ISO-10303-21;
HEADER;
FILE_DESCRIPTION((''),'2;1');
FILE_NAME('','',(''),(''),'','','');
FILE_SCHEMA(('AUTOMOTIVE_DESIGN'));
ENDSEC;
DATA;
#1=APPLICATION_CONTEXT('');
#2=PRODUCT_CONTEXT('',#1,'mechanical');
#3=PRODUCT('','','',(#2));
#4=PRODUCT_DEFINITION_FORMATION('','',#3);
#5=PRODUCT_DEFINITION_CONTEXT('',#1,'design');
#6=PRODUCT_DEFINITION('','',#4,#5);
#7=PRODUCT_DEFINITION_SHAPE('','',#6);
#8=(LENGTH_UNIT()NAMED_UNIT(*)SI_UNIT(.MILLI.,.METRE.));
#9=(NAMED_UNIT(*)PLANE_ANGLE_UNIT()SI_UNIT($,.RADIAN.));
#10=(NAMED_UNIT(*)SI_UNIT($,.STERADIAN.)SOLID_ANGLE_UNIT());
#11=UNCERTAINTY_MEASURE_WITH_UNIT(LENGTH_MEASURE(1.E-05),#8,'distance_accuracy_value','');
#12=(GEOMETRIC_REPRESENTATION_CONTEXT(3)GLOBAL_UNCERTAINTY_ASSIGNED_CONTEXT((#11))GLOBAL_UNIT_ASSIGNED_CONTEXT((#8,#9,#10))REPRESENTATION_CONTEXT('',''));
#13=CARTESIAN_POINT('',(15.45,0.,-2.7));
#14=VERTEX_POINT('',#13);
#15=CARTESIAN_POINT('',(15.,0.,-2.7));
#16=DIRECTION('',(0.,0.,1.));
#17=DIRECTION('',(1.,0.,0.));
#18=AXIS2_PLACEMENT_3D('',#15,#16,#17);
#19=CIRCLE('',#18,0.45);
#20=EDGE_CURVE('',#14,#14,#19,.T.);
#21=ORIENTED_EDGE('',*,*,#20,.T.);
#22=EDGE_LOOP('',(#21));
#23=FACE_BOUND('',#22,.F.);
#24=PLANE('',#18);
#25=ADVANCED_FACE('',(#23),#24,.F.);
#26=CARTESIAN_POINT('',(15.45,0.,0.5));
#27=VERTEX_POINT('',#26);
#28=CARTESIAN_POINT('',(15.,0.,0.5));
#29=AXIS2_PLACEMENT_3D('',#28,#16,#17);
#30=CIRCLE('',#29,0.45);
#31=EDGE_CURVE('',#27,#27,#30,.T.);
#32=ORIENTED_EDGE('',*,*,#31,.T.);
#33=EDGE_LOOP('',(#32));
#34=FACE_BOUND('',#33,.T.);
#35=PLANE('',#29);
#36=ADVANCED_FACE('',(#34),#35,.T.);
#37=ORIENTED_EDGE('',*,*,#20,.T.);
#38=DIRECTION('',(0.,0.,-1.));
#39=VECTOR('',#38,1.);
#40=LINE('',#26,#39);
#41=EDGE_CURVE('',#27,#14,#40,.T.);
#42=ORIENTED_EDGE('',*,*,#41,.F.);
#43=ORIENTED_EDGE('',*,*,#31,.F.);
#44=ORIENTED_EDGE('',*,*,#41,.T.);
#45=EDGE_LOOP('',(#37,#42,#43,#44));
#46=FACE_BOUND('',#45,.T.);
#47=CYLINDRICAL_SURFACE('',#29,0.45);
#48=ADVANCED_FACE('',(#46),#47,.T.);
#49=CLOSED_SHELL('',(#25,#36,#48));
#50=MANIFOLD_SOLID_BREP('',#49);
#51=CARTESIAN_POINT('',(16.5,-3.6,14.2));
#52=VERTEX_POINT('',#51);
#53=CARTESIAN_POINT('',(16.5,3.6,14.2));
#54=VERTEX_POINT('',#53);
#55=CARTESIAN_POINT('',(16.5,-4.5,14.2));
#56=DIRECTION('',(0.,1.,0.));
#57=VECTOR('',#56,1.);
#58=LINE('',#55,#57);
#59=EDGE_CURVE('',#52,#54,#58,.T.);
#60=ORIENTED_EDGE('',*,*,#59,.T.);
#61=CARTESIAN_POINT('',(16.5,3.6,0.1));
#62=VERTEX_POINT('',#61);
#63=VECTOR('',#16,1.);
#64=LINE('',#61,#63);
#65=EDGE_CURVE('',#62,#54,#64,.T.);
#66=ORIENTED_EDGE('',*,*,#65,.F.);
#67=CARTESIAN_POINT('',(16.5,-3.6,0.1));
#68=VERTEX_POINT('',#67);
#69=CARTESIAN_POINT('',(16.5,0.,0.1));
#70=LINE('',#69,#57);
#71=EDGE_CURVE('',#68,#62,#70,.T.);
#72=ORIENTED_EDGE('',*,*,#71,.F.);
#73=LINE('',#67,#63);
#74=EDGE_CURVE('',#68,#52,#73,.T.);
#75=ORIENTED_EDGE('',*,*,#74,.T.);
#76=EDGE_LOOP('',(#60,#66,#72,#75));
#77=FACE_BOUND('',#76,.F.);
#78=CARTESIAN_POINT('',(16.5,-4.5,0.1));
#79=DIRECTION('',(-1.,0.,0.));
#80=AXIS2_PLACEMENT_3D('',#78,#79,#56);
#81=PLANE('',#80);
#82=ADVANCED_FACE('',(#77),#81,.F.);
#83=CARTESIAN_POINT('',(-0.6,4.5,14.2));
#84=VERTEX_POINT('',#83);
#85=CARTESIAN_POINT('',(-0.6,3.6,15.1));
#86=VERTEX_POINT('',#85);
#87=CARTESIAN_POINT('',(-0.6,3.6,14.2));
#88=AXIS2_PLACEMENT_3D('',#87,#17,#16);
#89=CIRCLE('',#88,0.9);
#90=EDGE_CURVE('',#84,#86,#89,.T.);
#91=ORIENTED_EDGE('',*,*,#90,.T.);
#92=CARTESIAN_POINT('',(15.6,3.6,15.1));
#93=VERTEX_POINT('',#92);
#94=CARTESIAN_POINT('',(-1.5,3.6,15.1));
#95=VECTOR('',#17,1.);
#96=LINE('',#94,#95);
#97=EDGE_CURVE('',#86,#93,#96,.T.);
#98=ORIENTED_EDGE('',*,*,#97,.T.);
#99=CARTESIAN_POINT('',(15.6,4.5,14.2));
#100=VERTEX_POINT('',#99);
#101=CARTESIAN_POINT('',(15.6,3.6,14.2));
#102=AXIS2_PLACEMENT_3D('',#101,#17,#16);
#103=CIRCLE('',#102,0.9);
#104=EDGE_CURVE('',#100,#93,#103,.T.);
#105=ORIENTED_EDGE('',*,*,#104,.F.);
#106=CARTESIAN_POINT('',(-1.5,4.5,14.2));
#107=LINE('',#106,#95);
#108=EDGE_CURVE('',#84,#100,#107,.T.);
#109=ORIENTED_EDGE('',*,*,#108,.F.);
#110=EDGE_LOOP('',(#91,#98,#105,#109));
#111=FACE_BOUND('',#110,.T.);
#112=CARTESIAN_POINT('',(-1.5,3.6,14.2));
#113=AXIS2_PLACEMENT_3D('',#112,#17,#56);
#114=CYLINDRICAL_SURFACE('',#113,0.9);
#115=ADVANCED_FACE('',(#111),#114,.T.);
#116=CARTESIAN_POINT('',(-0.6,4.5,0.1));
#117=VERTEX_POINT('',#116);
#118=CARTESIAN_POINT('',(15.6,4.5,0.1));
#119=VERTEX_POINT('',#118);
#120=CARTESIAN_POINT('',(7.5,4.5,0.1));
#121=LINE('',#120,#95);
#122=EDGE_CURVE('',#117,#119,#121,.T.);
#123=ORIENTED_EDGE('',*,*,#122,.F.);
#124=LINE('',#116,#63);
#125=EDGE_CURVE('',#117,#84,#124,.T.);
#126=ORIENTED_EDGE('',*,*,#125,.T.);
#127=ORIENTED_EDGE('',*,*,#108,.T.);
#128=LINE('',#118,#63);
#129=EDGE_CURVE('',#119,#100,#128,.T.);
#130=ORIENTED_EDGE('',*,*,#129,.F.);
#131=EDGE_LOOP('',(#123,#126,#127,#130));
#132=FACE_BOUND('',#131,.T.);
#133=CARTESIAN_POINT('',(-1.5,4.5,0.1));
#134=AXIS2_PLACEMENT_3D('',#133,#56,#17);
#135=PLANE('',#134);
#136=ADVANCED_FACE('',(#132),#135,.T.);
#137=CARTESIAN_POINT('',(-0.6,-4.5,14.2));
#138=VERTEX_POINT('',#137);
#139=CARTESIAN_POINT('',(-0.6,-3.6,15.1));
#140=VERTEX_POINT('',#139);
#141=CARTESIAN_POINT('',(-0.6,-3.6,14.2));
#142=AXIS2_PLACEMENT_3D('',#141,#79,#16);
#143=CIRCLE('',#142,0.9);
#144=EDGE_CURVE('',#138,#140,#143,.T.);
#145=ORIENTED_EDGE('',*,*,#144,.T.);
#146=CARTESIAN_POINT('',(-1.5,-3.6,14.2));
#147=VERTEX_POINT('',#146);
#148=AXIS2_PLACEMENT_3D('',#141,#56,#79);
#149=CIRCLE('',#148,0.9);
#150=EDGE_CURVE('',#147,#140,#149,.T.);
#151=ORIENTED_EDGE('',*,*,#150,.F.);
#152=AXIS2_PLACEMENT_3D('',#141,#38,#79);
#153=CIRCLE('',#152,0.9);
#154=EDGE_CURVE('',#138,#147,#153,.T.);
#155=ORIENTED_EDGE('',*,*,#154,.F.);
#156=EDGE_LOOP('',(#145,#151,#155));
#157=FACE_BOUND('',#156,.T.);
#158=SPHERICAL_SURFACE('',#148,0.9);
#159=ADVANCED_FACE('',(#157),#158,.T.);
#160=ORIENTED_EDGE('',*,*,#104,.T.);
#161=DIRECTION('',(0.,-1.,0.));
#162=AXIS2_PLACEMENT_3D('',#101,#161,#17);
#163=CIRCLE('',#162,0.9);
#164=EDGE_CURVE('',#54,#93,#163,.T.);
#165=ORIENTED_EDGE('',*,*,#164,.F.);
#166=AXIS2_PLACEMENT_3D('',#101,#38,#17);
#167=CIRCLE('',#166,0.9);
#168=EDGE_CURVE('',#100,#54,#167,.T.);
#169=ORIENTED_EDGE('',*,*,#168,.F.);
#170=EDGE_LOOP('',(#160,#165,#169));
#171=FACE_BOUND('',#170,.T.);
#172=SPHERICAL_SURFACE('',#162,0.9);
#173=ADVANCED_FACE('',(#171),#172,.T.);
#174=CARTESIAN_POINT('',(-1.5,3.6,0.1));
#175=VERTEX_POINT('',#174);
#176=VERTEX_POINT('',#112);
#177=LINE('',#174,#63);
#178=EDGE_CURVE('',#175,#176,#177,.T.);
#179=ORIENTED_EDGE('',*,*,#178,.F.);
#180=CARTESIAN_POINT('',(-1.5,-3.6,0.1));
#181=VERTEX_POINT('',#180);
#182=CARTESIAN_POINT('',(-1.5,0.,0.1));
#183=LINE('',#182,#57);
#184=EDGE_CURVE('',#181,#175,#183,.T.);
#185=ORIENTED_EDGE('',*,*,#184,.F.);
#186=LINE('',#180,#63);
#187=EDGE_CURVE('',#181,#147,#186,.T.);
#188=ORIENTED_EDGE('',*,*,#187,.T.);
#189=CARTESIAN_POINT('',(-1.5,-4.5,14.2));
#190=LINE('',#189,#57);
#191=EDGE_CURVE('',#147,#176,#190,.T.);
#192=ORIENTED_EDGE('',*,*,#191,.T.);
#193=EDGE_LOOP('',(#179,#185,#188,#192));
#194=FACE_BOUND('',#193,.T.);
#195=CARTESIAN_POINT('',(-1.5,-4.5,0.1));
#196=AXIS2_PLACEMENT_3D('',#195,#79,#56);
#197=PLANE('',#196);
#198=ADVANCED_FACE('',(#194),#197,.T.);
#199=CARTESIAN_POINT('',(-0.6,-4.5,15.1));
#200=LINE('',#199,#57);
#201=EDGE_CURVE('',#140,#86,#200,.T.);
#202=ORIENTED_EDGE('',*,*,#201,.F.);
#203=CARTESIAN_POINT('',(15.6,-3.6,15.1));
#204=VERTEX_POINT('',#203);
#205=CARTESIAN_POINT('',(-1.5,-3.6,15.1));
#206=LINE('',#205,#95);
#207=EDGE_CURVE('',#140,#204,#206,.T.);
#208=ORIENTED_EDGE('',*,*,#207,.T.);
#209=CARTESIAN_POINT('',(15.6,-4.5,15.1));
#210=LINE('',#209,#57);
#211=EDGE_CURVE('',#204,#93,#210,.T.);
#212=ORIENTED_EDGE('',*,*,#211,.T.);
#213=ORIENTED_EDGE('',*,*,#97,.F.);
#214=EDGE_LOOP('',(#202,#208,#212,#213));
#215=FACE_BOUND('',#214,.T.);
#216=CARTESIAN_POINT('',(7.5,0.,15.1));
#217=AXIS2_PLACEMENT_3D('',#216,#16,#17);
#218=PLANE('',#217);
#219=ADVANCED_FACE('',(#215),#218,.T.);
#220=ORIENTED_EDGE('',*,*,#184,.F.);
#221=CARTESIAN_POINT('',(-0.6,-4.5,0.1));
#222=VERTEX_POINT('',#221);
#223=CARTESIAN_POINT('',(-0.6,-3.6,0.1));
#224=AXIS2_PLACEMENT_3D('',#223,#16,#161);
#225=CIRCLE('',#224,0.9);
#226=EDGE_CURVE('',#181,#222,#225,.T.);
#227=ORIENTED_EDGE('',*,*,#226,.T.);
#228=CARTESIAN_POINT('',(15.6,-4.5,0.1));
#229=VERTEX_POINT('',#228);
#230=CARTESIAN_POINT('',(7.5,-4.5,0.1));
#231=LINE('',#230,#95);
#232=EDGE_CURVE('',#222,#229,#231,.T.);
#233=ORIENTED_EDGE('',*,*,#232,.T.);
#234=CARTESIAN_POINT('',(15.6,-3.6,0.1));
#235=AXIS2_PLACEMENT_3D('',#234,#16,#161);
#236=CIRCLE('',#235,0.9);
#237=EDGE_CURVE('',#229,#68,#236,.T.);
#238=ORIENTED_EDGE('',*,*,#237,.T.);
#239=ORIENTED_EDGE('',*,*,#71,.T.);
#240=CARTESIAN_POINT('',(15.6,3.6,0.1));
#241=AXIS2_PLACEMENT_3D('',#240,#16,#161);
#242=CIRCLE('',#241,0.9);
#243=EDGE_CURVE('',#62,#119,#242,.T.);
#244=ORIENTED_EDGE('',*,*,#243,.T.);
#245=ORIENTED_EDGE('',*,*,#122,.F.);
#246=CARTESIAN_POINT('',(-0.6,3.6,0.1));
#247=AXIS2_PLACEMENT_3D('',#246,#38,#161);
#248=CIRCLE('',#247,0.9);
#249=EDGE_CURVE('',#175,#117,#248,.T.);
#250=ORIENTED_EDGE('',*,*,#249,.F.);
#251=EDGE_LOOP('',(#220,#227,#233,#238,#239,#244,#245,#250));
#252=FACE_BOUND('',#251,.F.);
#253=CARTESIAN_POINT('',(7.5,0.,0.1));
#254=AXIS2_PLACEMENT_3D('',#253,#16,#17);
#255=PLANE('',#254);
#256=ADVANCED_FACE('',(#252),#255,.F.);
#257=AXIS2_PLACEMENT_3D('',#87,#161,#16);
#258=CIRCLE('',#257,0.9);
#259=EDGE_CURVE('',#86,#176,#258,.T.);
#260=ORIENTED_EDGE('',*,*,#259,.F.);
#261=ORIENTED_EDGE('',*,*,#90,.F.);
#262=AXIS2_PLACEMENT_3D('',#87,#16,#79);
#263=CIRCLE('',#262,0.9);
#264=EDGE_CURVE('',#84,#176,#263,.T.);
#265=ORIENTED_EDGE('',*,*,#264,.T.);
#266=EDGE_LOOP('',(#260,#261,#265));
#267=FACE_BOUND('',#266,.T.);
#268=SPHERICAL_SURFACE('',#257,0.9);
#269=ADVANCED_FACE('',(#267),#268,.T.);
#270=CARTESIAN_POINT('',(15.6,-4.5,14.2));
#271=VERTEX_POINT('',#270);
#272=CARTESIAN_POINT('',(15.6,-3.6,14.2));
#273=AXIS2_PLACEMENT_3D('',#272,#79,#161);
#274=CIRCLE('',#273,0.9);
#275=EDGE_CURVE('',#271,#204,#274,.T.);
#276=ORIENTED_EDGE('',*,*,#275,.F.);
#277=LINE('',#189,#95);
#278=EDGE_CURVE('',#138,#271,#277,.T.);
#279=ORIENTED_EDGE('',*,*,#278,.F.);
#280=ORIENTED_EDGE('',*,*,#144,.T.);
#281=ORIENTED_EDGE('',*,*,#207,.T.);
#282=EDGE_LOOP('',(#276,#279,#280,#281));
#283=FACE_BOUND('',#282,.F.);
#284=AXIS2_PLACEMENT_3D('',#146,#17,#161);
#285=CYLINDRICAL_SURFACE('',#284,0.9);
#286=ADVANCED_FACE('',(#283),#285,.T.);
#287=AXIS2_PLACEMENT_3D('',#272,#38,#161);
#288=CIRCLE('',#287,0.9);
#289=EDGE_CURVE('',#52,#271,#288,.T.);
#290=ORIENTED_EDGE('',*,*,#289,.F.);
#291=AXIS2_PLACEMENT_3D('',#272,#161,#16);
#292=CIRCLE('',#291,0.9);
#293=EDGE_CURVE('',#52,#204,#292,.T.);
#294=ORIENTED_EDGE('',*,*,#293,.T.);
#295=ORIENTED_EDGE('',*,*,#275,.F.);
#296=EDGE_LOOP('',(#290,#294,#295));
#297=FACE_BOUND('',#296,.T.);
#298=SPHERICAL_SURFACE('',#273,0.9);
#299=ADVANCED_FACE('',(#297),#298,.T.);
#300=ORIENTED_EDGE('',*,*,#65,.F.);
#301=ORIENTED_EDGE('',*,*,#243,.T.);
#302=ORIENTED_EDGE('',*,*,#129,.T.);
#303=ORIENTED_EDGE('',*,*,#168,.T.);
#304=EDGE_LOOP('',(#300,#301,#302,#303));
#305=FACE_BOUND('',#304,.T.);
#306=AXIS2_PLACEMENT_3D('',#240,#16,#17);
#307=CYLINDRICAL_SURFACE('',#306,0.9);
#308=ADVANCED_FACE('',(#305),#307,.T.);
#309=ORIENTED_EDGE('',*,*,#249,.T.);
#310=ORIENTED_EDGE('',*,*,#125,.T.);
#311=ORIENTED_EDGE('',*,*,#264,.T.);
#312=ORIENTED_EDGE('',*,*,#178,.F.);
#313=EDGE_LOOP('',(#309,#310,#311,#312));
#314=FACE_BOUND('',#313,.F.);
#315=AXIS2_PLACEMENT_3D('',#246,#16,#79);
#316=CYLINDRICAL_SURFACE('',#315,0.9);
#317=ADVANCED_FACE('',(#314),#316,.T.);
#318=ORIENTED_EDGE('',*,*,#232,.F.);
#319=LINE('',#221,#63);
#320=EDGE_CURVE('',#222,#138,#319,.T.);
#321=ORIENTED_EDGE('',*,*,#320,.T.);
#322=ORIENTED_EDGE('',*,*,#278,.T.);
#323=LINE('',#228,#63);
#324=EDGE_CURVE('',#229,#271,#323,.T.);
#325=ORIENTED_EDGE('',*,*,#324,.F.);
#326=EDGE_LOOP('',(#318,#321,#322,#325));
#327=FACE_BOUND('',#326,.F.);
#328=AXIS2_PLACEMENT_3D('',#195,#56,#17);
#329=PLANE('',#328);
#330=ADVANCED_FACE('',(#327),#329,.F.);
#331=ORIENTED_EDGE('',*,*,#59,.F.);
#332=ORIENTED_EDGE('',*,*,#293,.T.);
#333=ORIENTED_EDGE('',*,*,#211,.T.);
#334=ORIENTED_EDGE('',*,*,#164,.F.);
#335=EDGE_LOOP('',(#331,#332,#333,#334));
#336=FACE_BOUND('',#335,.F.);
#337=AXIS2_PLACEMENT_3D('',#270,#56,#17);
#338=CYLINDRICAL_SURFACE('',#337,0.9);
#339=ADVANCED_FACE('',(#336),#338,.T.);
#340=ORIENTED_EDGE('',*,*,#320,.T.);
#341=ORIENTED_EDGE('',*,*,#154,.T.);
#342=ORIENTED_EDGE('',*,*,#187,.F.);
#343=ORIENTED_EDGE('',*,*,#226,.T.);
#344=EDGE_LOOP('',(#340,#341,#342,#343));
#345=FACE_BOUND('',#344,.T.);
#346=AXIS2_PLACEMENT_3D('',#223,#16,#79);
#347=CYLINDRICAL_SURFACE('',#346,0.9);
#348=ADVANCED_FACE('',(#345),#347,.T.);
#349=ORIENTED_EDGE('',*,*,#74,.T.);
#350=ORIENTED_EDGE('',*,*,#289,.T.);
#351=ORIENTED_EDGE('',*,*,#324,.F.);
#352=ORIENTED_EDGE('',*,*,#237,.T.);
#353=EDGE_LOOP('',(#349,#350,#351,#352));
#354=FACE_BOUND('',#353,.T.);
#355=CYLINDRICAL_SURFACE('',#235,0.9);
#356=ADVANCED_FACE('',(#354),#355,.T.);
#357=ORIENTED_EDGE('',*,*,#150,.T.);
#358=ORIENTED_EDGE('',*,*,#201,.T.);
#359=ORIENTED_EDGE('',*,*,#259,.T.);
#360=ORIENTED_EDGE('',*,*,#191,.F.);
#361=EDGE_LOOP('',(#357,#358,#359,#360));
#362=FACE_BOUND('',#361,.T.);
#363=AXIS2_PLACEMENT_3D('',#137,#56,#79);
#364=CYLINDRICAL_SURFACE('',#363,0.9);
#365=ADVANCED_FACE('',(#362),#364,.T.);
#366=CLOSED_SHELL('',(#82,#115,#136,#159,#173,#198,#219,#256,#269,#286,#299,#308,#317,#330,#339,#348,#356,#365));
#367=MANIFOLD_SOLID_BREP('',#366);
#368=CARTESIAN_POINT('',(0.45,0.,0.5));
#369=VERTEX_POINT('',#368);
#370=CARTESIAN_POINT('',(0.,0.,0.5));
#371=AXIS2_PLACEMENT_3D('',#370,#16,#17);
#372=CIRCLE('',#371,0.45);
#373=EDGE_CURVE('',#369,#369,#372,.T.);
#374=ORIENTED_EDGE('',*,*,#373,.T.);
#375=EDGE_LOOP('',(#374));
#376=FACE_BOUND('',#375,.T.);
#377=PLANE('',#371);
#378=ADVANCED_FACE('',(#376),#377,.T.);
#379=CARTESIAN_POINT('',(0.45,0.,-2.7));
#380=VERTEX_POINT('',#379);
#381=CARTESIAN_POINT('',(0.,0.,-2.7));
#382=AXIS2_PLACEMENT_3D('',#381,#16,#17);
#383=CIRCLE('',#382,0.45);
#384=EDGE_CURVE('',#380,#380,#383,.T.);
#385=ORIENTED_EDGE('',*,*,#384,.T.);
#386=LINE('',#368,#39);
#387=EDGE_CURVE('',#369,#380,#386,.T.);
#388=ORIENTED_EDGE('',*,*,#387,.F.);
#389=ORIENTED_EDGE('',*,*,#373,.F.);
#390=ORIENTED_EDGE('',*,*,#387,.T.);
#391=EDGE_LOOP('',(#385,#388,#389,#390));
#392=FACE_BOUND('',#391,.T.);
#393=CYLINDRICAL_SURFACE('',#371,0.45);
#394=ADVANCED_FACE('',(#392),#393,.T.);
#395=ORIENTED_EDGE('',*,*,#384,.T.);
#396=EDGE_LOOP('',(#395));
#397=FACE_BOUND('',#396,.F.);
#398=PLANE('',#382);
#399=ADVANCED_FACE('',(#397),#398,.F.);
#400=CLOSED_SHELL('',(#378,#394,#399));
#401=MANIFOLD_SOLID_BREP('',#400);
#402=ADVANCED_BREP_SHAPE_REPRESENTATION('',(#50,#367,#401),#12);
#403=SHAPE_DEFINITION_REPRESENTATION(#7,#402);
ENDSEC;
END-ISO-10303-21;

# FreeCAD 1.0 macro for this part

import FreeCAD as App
import Part
import Sketcher
from FreeCAD import Vector


def edges_at(feature, points):
    """Names of the edges that pass closest to the given points."""
    edges = feature.Shape.Edges
    near = lambda p: min(range(len(edges)), key=lambda i: edges[i].distToShape(Part.Vertex(*p))[0])
    return sorted({f"Edge{near(p) + 1}" for p in points})


def add_polygon(sketch, points):
    """Adds a closed chain of lines whose ends are joined by coincident constraints."""
    first, n = sketch.GeometryCount, len(points)
    for a, b in zip(points, points[1:] + points[:1]):
        sketch.addGeometry(Part.LineSegment(App.Vector(*a, 0), App.Vector(*b, 0)), False)
    for i in range(n):
        sketch.addConstraint(Sketcher.Constraint("Coincident", first + i, 2, first + (i + 1) % n, 1))

doc = App.newDocument("Part")
body = doc.addObject("PartDesign::Body", "Body")

sketch1 = doc.addObject("Sketcher::SketchObject", "Sketch")
body.addObject(sketch1)
sketch1.AttachmentSupport = (doc.XY_Plane, [""])
sketch1.MapMode = "FlatFace"
sketch1.AttachmentOffset = App.Placement(Vector(0, 0, 0.1), App.Rotation())
add_polygon(sketch1, [(-2, 4), (-2, -4), (16, -4), (16, 4)])
sketch1.addConstraint([
    Sketcher.Constraint("Vertical", 0),
    Sketcher.Constraint("Horizontal", 1),
    Sketcher.Constraint("Vertical", 2),
    Sketcher.Constraint("Horizontal", 3),
    Sketcher.Constraint("DistanceX", 1, 1, 1, 2, 18.0),
    Sketcher.Constraint("DistanceY", 0, 2, 0, 1, 9.0),
    Sketcher.Constraint("DistanceX", 0, 2, -1, 1, 1.5),
    Sketcher.Constraint("DistanceY", 0, 2, -1, 1, 4.5),
])
pad1 = doc.addObject("PartDesign::Pad", "Pad")
body.addObject(pad1)
pad1.Profile = sketch1
pad1.Length = 15
doc.recompute()

fillet = doc.addObject("PartDesign::Fillet", "Fillet")
body.addObject(fillet)
fillet.Base = (pad1, edges_at(pad1, [
    (-1.5, 0, 15.1),
    (-1.5, -4.5, 7.6),
    (7.5, -4.5, 15.1),
    (16.5, -4.5, 7.6),
    (16.5, 0, 15.1),
    (16.5, 4.5, 7.6),
    (7.5, 4.5, 15.1),
    (-1.5, 4.5, 7.6),
]))
fillet.Radius = 0.9
body2 = doc.addObject("PartDesign::Body", "Body001")
body2.AllowCompound = True

sketch2 = doc.addObject("Sketcher::SketchObject", "Sketch001")
body2.addObject(sketch2)
sketch2.AttachmentSupport = (doc.getObject("XY_Plane001"), [""])
sketch2.MapMode = "FlatFace"
sketch2.AttachmentOffset = App.Placement(Vector(0, 0, 0.5), App.Rotation())
sketch2.addGeometry([
    Part.Circle(Vector(0, 0, 0), Vector(0, 0, 1), 0.45),
    Part.Circle(Vector(15, 0, 0), Vector(0, 0, 1), 0.45),
], False)
sketch2.addConstraint([
    Sketcher.Constraint("Coincident", 0, 3, -1, 1),
    Sketcher.Constraint("Equal", 0, 1),
    Sketcher.Constraint("PointOnObject", 1, 3, -1),
    Sketcher.Constraint("Diameter", 0, 0.9),
    Sketcher.Constraint("DistanceX", -1, 1, 1, 3, 15.0),
])
pad2 = doc.addObject("PartDesign::Pad", "Pad001")
body2.addObject(pad2)
pad2.Profile = sketch2
pad2.Length = 3.2
pad2.Reversed = True

doc.recompute()
